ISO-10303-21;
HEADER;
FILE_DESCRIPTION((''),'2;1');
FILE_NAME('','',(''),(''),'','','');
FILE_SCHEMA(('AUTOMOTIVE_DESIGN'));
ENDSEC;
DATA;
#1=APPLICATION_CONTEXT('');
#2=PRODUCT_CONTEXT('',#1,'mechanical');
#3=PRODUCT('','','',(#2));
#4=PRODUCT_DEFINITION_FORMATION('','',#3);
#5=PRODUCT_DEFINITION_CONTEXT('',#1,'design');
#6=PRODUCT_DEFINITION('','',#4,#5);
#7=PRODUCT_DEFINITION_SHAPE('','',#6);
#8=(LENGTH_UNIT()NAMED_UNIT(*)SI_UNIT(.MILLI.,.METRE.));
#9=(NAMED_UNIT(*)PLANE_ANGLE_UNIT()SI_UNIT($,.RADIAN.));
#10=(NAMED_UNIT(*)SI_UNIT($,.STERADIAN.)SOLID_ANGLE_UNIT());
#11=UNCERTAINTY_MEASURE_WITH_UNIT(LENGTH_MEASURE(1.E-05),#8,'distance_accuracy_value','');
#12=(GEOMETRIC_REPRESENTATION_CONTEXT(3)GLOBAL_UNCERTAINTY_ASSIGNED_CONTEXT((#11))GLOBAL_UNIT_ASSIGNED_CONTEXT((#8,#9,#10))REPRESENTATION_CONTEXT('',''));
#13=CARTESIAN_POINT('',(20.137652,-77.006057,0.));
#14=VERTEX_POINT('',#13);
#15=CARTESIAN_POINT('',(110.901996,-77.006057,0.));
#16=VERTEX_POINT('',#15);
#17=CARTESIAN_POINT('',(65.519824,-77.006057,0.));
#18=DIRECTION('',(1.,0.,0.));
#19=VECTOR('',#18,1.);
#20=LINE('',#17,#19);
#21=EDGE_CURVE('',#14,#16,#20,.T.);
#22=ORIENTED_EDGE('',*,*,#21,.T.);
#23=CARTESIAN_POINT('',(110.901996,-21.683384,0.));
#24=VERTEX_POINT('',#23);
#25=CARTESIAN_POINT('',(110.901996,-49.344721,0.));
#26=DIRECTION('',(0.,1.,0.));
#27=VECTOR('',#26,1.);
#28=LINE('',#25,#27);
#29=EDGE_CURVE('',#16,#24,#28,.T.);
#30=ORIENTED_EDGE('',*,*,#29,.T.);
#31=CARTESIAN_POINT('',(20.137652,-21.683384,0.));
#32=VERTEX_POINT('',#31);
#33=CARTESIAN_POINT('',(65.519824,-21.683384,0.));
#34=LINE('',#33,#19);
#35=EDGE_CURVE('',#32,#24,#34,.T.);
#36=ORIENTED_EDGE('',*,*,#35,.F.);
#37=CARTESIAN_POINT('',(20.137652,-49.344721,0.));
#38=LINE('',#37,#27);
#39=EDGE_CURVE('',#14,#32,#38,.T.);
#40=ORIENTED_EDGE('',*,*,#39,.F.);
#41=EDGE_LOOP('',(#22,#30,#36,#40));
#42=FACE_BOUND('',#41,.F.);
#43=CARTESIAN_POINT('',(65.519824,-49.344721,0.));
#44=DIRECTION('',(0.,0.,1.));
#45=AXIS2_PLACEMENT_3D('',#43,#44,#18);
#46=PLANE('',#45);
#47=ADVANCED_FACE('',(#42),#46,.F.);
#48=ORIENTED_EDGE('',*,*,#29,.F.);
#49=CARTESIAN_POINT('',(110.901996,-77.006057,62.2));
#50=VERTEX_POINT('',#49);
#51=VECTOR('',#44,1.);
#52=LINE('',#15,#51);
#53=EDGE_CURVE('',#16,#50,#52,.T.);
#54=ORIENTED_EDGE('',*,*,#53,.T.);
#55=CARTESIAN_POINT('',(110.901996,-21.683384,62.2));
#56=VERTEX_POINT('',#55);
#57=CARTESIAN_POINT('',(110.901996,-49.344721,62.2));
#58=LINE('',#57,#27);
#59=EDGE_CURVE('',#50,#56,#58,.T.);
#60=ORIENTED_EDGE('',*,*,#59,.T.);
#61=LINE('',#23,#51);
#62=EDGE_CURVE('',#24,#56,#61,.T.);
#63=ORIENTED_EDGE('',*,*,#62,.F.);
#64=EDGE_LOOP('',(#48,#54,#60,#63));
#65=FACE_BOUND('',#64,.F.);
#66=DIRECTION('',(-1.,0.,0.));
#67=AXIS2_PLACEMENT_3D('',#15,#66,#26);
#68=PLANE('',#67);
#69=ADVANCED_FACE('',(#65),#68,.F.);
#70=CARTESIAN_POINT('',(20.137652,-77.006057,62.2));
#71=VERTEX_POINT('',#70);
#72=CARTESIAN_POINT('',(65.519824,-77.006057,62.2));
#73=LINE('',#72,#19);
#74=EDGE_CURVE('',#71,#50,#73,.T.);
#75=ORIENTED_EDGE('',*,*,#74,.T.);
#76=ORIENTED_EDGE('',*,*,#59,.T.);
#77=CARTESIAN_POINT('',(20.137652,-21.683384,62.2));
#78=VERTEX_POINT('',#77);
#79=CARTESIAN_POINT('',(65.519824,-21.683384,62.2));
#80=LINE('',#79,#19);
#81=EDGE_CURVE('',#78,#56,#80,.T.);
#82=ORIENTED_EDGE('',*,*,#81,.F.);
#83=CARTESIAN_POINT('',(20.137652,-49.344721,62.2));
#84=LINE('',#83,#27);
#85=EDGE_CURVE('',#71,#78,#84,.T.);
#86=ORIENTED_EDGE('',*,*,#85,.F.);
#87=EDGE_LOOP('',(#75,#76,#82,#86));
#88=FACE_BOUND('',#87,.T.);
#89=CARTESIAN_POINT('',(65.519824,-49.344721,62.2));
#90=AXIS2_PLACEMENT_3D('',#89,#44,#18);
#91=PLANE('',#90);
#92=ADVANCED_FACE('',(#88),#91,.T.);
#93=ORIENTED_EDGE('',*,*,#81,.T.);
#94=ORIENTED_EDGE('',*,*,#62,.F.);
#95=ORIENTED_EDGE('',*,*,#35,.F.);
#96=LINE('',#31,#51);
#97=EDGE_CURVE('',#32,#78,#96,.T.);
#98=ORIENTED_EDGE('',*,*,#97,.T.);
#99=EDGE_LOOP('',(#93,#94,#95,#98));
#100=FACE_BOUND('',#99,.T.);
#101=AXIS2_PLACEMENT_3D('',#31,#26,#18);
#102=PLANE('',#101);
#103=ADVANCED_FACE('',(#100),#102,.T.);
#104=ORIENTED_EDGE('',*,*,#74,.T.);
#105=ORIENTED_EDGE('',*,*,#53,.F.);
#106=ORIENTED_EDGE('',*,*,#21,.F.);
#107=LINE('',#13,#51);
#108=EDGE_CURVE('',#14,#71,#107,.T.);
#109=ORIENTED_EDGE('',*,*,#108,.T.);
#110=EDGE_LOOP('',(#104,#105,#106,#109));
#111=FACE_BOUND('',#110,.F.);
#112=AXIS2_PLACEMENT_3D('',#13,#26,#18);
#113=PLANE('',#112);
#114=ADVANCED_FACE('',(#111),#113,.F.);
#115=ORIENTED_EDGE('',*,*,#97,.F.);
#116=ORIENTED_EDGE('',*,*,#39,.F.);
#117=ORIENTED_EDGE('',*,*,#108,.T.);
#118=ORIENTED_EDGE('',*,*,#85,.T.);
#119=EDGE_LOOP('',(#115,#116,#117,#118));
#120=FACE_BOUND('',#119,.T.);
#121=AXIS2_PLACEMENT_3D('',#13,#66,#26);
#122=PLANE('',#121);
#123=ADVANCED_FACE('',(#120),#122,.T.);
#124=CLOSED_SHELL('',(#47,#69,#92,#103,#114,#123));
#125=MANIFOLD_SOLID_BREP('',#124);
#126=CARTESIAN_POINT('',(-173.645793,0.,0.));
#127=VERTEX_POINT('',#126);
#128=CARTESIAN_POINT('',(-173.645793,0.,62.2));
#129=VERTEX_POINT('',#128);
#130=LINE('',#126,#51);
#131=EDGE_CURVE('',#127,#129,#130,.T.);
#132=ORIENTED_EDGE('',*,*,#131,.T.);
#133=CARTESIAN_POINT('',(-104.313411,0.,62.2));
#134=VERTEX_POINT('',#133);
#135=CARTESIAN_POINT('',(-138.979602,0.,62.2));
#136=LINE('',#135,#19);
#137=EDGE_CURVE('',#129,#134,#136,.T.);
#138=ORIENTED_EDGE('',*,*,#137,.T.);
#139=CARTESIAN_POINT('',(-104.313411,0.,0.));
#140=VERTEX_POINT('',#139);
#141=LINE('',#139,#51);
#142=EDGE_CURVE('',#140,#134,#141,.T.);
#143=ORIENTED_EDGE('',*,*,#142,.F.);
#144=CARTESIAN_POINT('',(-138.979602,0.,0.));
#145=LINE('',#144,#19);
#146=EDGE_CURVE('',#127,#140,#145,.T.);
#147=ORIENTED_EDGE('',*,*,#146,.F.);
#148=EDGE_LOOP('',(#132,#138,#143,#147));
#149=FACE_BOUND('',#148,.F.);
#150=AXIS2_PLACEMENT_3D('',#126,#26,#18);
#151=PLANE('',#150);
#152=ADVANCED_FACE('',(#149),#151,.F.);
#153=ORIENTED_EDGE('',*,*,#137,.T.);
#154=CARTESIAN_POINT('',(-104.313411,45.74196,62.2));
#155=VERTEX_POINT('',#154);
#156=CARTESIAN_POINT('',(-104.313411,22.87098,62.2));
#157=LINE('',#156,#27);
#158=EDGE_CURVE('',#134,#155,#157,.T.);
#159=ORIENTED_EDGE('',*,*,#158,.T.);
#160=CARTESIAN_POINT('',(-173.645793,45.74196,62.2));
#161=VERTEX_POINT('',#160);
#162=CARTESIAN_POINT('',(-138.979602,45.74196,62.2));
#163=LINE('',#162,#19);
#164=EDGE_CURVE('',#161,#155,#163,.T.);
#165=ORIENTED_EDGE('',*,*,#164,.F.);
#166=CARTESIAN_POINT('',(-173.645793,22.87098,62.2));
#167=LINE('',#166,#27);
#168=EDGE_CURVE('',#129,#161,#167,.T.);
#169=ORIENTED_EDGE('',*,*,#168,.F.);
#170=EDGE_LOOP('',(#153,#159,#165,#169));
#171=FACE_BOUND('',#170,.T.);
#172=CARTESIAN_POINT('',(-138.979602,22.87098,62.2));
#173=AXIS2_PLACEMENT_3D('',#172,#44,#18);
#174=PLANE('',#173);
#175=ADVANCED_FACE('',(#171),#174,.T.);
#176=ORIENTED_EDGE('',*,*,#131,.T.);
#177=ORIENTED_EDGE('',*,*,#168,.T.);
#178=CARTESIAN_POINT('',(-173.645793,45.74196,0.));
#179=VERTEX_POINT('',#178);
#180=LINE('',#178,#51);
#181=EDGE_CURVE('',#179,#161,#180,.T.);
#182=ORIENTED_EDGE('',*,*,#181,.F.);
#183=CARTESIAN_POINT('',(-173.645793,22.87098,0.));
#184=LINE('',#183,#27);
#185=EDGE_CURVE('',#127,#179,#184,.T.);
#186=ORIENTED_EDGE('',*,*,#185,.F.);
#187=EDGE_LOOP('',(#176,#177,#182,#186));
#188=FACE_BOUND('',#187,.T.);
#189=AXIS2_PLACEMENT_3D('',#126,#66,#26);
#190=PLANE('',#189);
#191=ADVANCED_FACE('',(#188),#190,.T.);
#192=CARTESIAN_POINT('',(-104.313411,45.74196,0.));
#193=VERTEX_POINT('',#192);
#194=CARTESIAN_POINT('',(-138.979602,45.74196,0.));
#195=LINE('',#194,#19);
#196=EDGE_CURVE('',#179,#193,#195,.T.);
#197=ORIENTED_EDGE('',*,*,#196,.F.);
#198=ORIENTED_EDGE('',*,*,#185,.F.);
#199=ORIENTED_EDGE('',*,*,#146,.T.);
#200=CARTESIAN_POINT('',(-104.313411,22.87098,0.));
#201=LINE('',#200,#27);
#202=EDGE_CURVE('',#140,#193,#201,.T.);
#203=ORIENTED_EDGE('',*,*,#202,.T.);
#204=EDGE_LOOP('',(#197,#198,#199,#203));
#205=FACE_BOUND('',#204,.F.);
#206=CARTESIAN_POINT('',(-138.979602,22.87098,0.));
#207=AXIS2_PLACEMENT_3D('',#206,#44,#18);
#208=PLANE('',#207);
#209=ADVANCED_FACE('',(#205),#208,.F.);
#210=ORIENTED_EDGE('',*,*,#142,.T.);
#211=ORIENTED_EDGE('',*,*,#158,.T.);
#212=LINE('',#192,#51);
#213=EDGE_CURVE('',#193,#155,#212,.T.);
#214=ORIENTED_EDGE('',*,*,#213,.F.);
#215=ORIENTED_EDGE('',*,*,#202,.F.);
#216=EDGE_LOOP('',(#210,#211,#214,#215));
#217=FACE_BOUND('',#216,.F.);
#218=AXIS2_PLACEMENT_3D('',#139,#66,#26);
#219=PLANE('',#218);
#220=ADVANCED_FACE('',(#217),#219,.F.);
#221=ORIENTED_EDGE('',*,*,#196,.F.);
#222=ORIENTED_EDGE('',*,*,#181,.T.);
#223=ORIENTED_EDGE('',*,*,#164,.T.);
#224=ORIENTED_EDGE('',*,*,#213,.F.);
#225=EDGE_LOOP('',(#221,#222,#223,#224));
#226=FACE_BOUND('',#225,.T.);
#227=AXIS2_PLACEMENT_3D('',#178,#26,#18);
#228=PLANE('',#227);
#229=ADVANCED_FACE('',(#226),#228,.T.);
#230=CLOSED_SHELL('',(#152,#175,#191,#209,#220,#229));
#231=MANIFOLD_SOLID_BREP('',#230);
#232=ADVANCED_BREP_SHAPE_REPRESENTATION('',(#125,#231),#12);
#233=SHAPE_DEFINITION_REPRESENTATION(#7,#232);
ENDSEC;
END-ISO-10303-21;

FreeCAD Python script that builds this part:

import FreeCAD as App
import Part
import Sketcher
from FreeCAD import Vector
Q = App.Units.Quantity

doc = App.newDocument("Part")
body = doc.addObject("PartDesign::Body", "Body")
body.AllowCompound = True

# Sketch on XY plane
sketch1 = doc.addObject("Sketcher::SketchObject", "Sketch")
body.addObject(sketch1)
sketch1.AttachmentSupport = (doc.XY_Plane, [""])
sketch1.MapMode = "FlatFace"
sketch1.addGeometry([
    Part.LineSegment(Vector(-174, 46, 0), Vector(-174, 0, 0)),  # 0
    Part.LineSegment(Vector(-174, 0, 0), Vector(-104, 0, 0)),  # 1
    Part.LineSegment(Vector(-104, 0, 0), Vector(-104, 46, 0)),  # 2
    Part.LineSegment(Vector(-104, 46, 0), Vector(-174, 46, 0)),  # 3
    Part.LineSegment(Vector(20, -22, 0), Vector(20, -77, 0)),  # 4
    Part.LineSegment(Vector(20, -77, 0), Vector(111, -77, 0)),  # 5
    Part.LineSegment(Vector(111, -77, 0), Vector(111, -22, 0)),  # 6
    Part.LineSegment(Vector(111, -22, 0), Vector(20, -22, 0)),  # 7
], False)
sketch1.addConstraint([
    Sketcher.Constraint("Coincident", 0, 2, 1, 1),
    Sketcher.Constraint("Coincident", 1, 2, 2, 1),
    Sketcher.Constraint("Coincident", 2, 2, 3, 1),
    Sketcher.Constraint("Coincident", 3, 2, 0, 1),
    Sketcher.Constraint("Coincident", 4, 2, 5, 1),
    Sketcher.Constraint("Coincident", 5, 2, 6, 1),
    Sketcher.Constraint("Coincident", 6, 2, 7, 1),
    Sketcher.Constraint("Coincident", 7, 2, 4, 1),
    Sketcher.Constraint("Vertical", 0),
    Sketcher.Constraint("Horizontal", 1),
    Sketcher.Constraint("Vertical", 2),
    Sketcher.Constraint("Horizontal", 3),
    Sketcher.Constraint("Vertical", 4),
    Sketcher.Constraint("Horizontal", 5),
    Sketcher.Constraint("Vertical", 6),
    Sketcher.Constraint("Horizontal", 7),
    Sketcher.Constraint("PointOnObject", 0, 2, -1),
    Sketcher.Constraint("DistanceY", 0, 2, 0, 1, Q("45.74196 mm")),
    Sketcher.Constraint("DistanceX", 1, 1, 1, 2, Q("69.332383 mm")),
    Sketcher.Constraint("DistanceX", 5, 1, 5, 2, Q("90.764345 mm")),
    Sketcher.Constraint("DistanceY", 4, 2, 4, 1, Q("55.322673 mm")),
    Sketcher.Constraint("DistanceX", 1, 2, -1, 1, Q("104.313411 mm")),
    Sketcher.Constraint("DistanceX", -1, 1, 4, 2, Q("20.137652 mm")),
    Sketcher.Constraint("DistanceY", 4, 2, -1, 1, Q("77.006057 mm")),
])
pad1 = doc.addObject("PartDesign::Pad", "Pad")
body.addObject(pad1)
pad1.Profile = sketch1
pad1.Length = 62.2

doc.recompute()
